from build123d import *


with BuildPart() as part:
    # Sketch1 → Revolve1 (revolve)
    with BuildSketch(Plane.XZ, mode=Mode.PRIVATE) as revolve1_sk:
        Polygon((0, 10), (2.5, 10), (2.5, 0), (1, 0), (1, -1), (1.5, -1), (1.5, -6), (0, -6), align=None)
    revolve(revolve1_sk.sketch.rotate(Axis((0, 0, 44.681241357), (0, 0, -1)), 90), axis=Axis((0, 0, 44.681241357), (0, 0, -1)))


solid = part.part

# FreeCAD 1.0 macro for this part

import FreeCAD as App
import Part
import Sketcher
from FreeCAD import Vector
Q = App.Units.Quantity

doc = App.newDocument("Part")
body = doc.addObject("PartDesign::Body", "Body")

# Sketch on XZ plane
sketch1 = body.newObject("Sketcher::SketchObject", "Sketch")
sketch1.AttachmentSupport = (doc.getObject("XZ_Plane"), [""])
sketch1.MapMode = "FlatFace"
sketch1.addGeometry([
    Part.LineSegment(Vector(2.5, 10, 0), Vector(0, 10, 0)),  # 0
    Part.LineSegment(Vector(0, 10, 0), Vector(0, -6, 0)),  # 1
    Part.LineSegment(Vector(0, -6, 0), Vector(1.5, -6, 0)),  # 2
    Part.LineSegment(Vector(1.5, -6, 0), Vector(1.5, -1, 0)),  # 3
    Part.LineSegment(Vector(1.5, -1, 0), Vector(1, -1, 0)),  # 4
    Part.LineSegment(Vector(1, -1, 0), Vector(1, 0, 0)),  # 5
    Part.LineSegment(Vector(1, 0, 0), Vector(2.5, 0, 0)),  # 6
    Part.LineSegment(Vector(2.5, 0, 0), Vector(2.5, 10, 0)),  # 7
], False)
sketch1.addConstraint([
    Sketcher.Constraint("Coincident", 0, 2, 1, 1),
    Sketcher.Constraint("Coincident", 1, 2, 2, 1),
    Sketcher.Constraint("Coincident", 2, 2, 3, 1),
    Sketcher.Constraint("Coincident", 3, 2, 4, 1),
    Sketcher.Constraint("Coincident", 4, 2, 5, 1),
    Sketcher.Constraint("Coincident", 5, 2, 6, 1),
    Sketcher.Constraint("Coincident", 6, 2, 7, 1),
    Sketcher.Constraint("Coincident", 7, 2, 0, 1),
    Sketcher.Constraint("Horizontal", 0),
    Sketcher.Constraint("Vertical", 1),
    Sketcher.Constraint("Horizontal", 2),
    Sketcher.Constraint("Vertical", 3),
    Sketcher.Constraint("Horizontal", 4),
    Sketcher.Constraint("Vertical", 5),
    Sketcher.Constraint("Horizontal", 6),
    Sketcher.Constraint("Vertical", 7),
    Sketcher.Constraint("PointOnObject", 0, 2, -2),
    Sketcher.Constraint("PointOnObject", 5, 2, -1),
    Sketcher.Constraint("Equal", 2, 6),
    Sketcher.Constraint("DistanceY", 1, 2, 1, 1, Q("16 mm")),
    Sketcher.Constraint("DistanceY", 3, 1, 3, 2, Q("5 mm")),
    Sketcher.Constraint("DistanceY", 5, 1, 5, 2, Q("1 mm")),
    Sketcher.Constraint("DistanceX", 0, 2, 0, 1, Q("2.5 mm")),
    Sketcher.Constraint("DistanceX", 2, 1, 2, 2, Q("1.5 mm")),
])
revolution = body.newObject("PartDesign::Revolution", "Revolution")
revolution.Profile = sketch1
revolution.ReferenceAxis = (sketch1, ["V_Axis"])
revolution.Angle = 360

doc.recompute()
